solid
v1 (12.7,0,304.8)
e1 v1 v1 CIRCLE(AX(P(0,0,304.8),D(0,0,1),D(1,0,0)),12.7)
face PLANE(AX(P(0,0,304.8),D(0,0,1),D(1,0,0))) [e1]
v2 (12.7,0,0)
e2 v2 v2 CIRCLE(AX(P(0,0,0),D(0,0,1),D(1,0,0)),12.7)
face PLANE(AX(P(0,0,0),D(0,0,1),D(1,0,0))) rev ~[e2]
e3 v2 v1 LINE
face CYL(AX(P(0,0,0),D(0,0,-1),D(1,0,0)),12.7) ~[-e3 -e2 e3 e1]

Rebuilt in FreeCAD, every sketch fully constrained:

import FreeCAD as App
import Part
import Sketcher

V = App.Vector
Q = App.Units.Quantity

doc = App.newDocument("Part")
body = doc.addObject("PartDesign::Body", "Body")

# Sketch on XY plane
sketch1 = body.newObject("Sketcher::SketchObject", "Sketch")
sketch1.AttachmentSupport = (doc.getObject("XY_Plane"), [""])
sketch1.MapMode = "FlatFace"
sketch1.addGeometry(Part.Circle(V(0, 0, 0), V(0, 0, 1), 12.7), False)
sketch1.addConstraint([
    Sketcher.Constraint("Coincident", 0, 3, -1, 1),
    Sketcher.Constraint("Diameter", 0, Q("1 in")),
])
pad1 = body.newObject("PartDesign::Pad", "Pad")
pad1.Profile = sketch1
pad1.Length = Q("12 in")

doc.recompute()
